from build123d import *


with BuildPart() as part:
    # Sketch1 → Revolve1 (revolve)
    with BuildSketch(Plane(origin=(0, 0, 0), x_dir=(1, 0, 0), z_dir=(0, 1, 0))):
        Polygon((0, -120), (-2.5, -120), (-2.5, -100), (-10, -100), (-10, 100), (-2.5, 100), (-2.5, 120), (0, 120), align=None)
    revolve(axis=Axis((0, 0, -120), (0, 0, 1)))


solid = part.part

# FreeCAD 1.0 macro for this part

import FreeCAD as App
import Part
import Sketcher
Q = App.Units.Quantity

doc = App.newDocument("Part")
body = doc.addObject("PartDesign::Body", "Body")

sketch1 = body.newObject("Sketcher::SketchObject", "Sketch")
sketch1.AttachmentSupport = (doc.getObject("XZ_Plane"), [""])
sketch1.MapMode = "FlatFace"
sketch1.addGeometry(Part.LineSegment(App.Vector(-2.5, 120, 0), App.Vector(0, 120, 0)), False)
sketch1.addGeometry(Part.LineSegment(App.Vector(0, 120, 0), App.Vector(0, -120, 0)), False)
sketch1.addGeometry(Part.LineSegment(App.Vector(0, -120, 0), App.Vector(-2.5, -120, 0)), False)
sketch1.addGeometry(Part.LineSegment(App.Vector(-2.5, -120, 0), App.Vector(-2.5, -100, 0)), False)
sketch1.addGeometry(Part.LineSegment(App.Vector(-2.5, -100, 0), App.Vector(-10, -100, 0)), False)
sketch1.addGeometry(Part.LineSegment(App.Vector(-10, -100, 0), App.Vector(-10, 100, 0)), False)
sketch1.addGeometry(Part.LineSegment(App.Vector(-10, 100, 0), App.Vector(-2.5, 100, 0)), False)
sketch1.addGeometry(Part.LineSegment(App.Vector(-2.5, 100, 0), App.Vector(-2.5, 120, 0)), False)
sketch1.addConstraint(Sketcher.Constraint("Coincident", 0, 2, 1, 1))
sketch1.addConstraint(Sketcher.Constraint("Coincident", 1, 2, 2, 1))
sketch1.addConstraint(Sketcher.Constraint("Coincident", 2, 2, 3, 1))
sketch1.addConstraint(Sketcher.Constraint("Coincident", 3, 2, 4, 1))
sketch1.addConstraint(Sketcher.Constraint("Coincident", 4, 2, 5, 1))
sketch1.addConstraint(Sketcher.Constraint("Coincident", 5, 2, 6, 1))
sketch1.addConstraint(Sketcher.Constraint("Coincident", 6, 2, 7, 1))
sketch1.addConstraint(Sketcher.Constraint("Coincident", 7, 2, 0, 1))
sketch1.addConstraint(Sketcher.Constraint("Horizontal", 0))
sketch1.addConstraint(Sketcher.Constraint("Vertical", 1))
sketch1.addConstraint(Sketcher.Constraint("Horizontal", 2))
sketch1.addConstraint(Sketcher.Constraint("Vertical", 3))
sketch1.addConstraint(Sketcher.Constraint("Horizontal", 4))
sketch1.addConstraint(Sketcher.Constraint("Vertical", 5))
sketch1.addConstraint(Sketcher.Constraint("Horizontal", 6))
sketch1.addConstraint(Sketcher.Constraint("Vertical", 7))
sketch1.addConstraint(Sketcher.Constraint("Symmetric", 0, 2, 1, 2, -1, 1))
sketch1.addConstraint(Sketcher.Constraint("Symmetric", 3, 2, 6, 2, -1))
sketch1.addConstraint(Sketcher.Constraint("DistanceY", 1, 2, 1, 1, Q("240 mm")))
sketch1.addConstraint(Sketcher.Constraint("DistanceY", 3, 1, 3, 2, Q("20 mm")))
sketch1.addConstraint(Sketcher.Constraint("DistanceX", 0, 1, 0, 2, Q("2.5 mm")))
sketch1.addConstraint(Sketcher.Constraint("DistanceX", 4, 2, 4, 1, Q("7.5 mm")))
revolution = body.newObject("PartDesign::Revolution", "Revolution")
revolution.Profile = sketch1
revolution.ReferenceAxis = (sketch1, ["V_Axis"])
revolution.Angle = 360

doc.recompute()
